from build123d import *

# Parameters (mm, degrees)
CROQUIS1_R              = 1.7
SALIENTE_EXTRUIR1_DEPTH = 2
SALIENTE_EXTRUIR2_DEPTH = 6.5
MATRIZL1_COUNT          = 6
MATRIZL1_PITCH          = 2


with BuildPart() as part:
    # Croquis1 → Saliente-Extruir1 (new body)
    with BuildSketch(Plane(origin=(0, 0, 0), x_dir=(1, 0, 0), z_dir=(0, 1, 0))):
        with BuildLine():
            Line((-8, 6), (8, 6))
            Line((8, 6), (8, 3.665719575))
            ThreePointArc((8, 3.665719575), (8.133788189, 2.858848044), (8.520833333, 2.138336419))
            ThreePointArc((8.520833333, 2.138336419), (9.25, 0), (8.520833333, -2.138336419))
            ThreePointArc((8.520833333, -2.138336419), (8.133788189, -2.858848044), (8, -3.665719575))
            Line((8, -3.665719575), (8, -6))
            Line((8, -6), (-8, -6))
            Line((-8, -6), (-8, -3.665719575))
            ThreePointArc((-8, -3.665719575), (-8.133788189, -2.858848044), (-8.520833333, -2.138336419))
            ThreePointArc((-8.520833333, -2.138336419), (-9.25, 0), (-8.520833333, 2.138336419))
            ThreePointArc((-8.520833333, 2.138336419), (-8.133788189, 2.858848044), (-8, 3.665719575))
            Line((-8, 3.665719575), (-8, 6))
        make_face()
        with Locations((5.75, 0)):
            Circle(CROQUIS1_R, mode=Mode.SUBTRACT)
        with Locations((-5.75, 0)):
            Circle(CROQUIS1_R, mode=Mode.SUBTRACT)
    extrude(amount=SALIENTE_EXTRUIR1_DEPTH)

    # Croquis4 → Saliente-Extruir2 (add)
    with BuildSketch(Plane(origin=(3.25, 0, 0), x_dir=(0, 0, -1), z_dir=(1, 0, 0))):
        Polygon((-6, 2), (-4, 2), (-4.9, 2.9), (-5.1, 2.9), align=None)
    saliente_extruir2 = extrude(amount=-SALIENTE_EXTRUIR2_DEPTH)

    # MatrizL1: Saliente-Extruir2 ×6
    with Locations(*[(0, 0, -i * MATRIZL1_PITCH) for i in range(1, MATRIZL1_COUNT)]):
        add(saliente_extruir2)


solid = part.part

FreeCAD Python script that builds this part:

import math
import FreeCAD as App
import Part
import Sketcher


def add_polygon(sketch, points):
    """Adds a closed chain of lines whose ends are joined by coincident constraints."""
    first, n = sketch.GeometryCount, len(points)
    for a, b in zip(points, points[1:] + points[:1]):
        sketch.addGeometry(Part.LineSegment(App.Vector(*a, 0), App.Vector(*b, 0)), False)
    for i in range(n):
        sketch.addConstraint(Sketcher.Constraint("Coincident", first + i, 2, first + (i + 1) % n, 1))

doc = App.newDocument("Part")
body = doc.addObject("PartDesign::Body", "Body")

sketch1 = body.newObject("Sketcher::SketchObject", "Sketch")
sketch1.AttachmentSupport = (doc.getObject("XZ_Plane"), [""])
sketch1.MapMode = "FlatFace"
sketch1.addGeometry([
    Part.LineSegment(App.Vector(8, -6, 0), App.Vector(-8, -6, 0)),
    Part.LineSegment(App.Vector(-8, -6, 0), App.Vector(-8, -3.7, 0)),
    Part.ArcOfCircle(Part.Circle(App.Vector(-10.5, -3.7, 0), App.Vector(0, 0, 1), 2.5), math.radians(0), math.radians(38)),
    Part.ArcOfCircle(Part.Circle(App.Vector(-5.8, 0, 0), App.Vector(0, 0, 1), 3.5), math.radians(142), math.radians(218)),
    Part.ArcOfCircle(Part.Circle(App.Vector(-10.5, 3.7, 0), App.Vector(0, 0, 1), 2.5), math.radians(-38), math.radians(0)),
    Part.LineSegment(App.Vector(-8, 3.7, 0), App.Vector(-8, 6, 0)),
    Part.LineSegment(App.Vector(-8, 6, 0), App.Vector(8, 6, 0)),
    Part.LineSegment(App.Vector(8, 6, 0), App.Vector(8, 3.7, 0)),
    Part.ArcOfCircle(Part.Circle(App.Vector(10.5, 3.7, 0), App.Vector(0, 0, 1), 2.5), math.radians(180), math.radians(218)),
    Part.ArcOfCircle(Part.Circle(App.Vector(5.8, 0, 0), App.Vector(0, 0, 1), 3.5), math.radians(-38), math.radians(38)),
    Part.ArcOfCircle(Part.Circle(App.Vector(10.5, -3.7, 0), App.Vector(0, 0, 1), 2.5), math.radians(142), math.radians(180)),
    Part.LineSegment(App.Vector(8, -3.7, 0), App.Vector(8, -6, 0)),
    Part.Circle(App.Vector(5.8, 0, 0), App.Vector(0, 0, 1), 1.7),
    Part.Circle(App.Vector(-5.8, 0, 0), App.Vector(0, 0, 1), 1.7),
], False)
sketch1.addConstraint([
    Sketcher.Constraint("Coincident", 0, 2, 1, 1),
    Sketcher.Constraint("Tangent", 1, 2, 2, 1),
    Sketcher.Constraint("Tangent", 2, 2, 3, 2),
    Sketcher.Constraint("Tangent", 3, 1, 4, 1),
    Sketcher.Constraint("Tangent", 4, 2, 5, 1),
    Sketcher.Constraint("Coincident", 5, 2, 6, 1),
    Sketcher.Constraint("Coincident", 6, 2, 7, 1),
    Sketcher.Constraint("Tangent", 7, 2, 8, 1),
    Sketcher.Constraint("Tangent", 8, 2, 9, 2),
    Sketcher.Constraint("Tangent", 9, 1, 10, 1),
    Sketcher.Constraint("Tangent", 10, 2, 11, 1),
    Sketcher.Constraint("Coincident", 11, 2, 0, 1),
    Sketcher.Constraint("Horizontal", 0),
    Sketcher.Constraint("Vertical", 1),
    Sketcher.Constraint("Vertical", 5),
    Sketcher.Constraint("Horizontal", 6),
    Sketcher.Constraint("Vertical", 7),
    Sketcher.Constraint("Vertical", 11),
    Sketcher.Constraint("Coincident", 12, 3, 9, 3),
    Sketcher.Constraint("Coincident", 13, 3, 3, 3),
    Sketcher.Constraint("Equal", 2, 4),
    Sketcher.Constraint("Equal", 4, 8),
    Sketcher.Constraint("Equal", 3, 9),
    Sketcher.Constraint("Equal", 8, 10),
    Sketcher.Constraint("Equal", 12, 13),
    Sketcher.Constraint("Symmetric", 2, 3, 8, 3, -1, 1),
    Sketcher.Constraint("Symmetric", 4, 3, 10, 3, -1, 1),
    Sketcher.Constraint("Symmetric", 4, 3, 8, 3, -2),
    Sketcher.Constraint("Equal", 1, 5),
    Sketcher.Constraint("Diameter", 12, 3.4),
    Sketcher.Constraint("Radius", 2, 2.5),
    Sketcher.Constraint("Radius", 3, 3.5),
    Sketcher.Constraint("DistanceX", 0, 2, 0, 1, 16.0),
    Sketcher.Constraint("DistanceY", 0, 2, -1, 1, 6.0),
    Sketcher.Constraint("DistanceX", 3, 3, 9, 3, 11.5),
])
pad1 = body.newObject("PartDesign::Pad", "Pad")
pad1.Profile = sketch1
pad1.Length = 2
pad1.Reversed = True

sketch2 = body.newObject("Sketcher::SketchObject", "Sketch001")
sketch2.AttachmentSupport = (doc.getObject("YZ_Plane"), [""])
sketch2.MapMode = "FlatFace"
sketch2.AttachmentOffset = App.Placement(App.Vector(0, 0, 3.25), App.Rotation())
add_polygon(sketch2, [(2, 6), (2, 4), (2.9, 4.9), (2.9, 5.1)])
sketch2.addConstraint([
    Sketcher.Constraint("Vertical", 0),
    Sketcher.Constraint("Vertical", 2),
    Sketcher.Constraint("Perpendicular", 1, 3),
    Sketcher.Constraint("Equal", 1, 3),
    Sketcher.Constraint("DistanceY", 0, 2, 0, 1, 2.0),
    Sketcher.Constraint("DistanceY", 2, 1, 2, 2, 0.2),
    Sketcher.Constraint("DistanceX", -1, 1, 0, 2, 2.0),
    Sketcher.Constraint("DistanceY", -1, 1, 0, 2, 4.0),
])
pad2 = body.newObject("PartDesign::Pad", "Pad001")
pad2.Profile = sketch2
pad2.Length = 6.5
pad2.Reversed = True
doc.recompute()

linearpattern = body.newObject("PartDesign::LinearPattern", "LinearPattern")
linearpattern.Originals = [pad2]
linearpattern.Direction = (doc.getObject("Z_Axis"), [""])
linearpattern.Mode = "offset"
linearpattern.Offset = 2
linearpattern.Occurrences = 6
linearpattern.Reversed = True
body.Tip = linearpattern

doc.recompute()
